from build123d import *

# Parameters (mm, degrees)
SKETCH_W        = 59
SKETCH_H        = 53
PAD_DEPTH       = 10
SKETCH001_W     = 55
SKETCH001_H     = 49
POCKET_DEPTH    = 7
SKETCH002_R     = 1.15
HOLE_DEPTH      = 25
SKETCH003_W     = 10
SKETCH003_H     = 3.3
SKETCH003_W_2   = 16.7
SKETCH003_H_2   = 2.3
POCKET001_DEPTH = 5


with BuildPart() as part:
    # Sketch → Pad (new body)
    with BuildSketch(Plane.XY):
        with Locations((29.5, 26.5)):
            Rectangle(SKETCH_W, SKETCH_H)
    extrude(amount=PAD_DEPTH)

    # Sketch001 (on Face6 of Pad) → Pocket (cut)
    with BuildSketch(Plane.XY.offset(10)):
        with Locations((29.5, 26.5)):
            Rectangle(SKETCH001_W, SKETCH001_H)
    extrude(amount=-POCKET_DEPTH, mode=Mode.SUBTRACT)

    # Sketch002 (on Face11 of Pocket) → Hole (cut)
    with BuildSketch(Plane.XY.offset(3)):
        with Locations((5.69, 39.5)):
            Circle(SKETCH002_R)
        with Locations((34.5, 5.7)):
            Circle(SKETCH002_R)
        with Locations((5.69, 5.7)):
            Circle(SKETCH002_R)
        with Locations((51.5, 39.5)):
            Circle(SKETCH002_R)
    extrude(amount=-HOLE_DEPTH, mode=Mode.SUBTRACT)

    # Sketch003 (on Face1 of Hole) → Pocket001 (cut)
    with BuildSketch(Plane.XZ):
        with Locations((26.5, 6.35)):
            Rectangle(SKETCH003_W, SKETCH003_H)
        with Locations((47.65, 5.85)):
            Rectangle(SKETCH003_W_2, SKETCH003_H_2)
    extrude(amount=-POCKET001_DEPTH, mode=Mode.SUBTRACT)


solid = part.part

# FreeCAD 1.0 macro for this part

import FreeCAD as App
import Part
import Sketcher
Q = App.Units.Quantity


def add_polygon(sketch, points):
    """Adds a closed chain of lines whose ends are joined by coincident constraints."""
    first, n = sketch.GeometryCount, len(points)
    for a, b in zip(points, points[1:] + points[:1]):
        sketch.addGeometry(Part.LineSegment(App.Vector(*a, 0), App.Vector(*b, 0)), False)
    for i in range(n):
        sketch.addConstraint(Sketcher.Constraint("Coincident", first + i, 2, first + (i + 1) % n, 1))

doc = App.newDocument("Part")
params = doc.addObject("Spreadsheet::Sheet", "Params")
for row, (alias, value) in enumerate([
    ("sketch1_width", "59 mm"),
    ("sketch1_height", "53 mm"),
    ("pad1_length", "10 mm"),
    ("sketch2_width", "55 mm"),
    ("sketch2_height", "49 mm"),
    ("pocket1_length", "7 mm"),
    ("sketch3_diameter", "2.3 mm"),
    ("pocket2_length", "25 mm"),
    ("sketch4_width", "10 mm"),
    ("sketch4_width2", "16.7 mm"),
    ("sketch4_height", "3.3 mm"),
    ("sketch4_height2", "2.3 mm"),
    ("pocket3_length", "5 mm"),
], start=1):
    params.set(f"A{row}", alias)
    params.set(f"B{row}", "=" + value)
    params.setAlias(f"B{row}", alias)

body = doc.addObject("PartDesign::Body", "Body")

# Sketch on XY plane
sketch1 = body.newObject("Sketcher::SketchObject", "Sketch")
sketch1.AttachmentSupport = (doc.getObject("XY_Plane"), [""])
sketch1.MapMode = "FlatFace"
add_polygon(sketch1, [(0, 53), (0, 0), (59, 0), (59, 53)])  # lines 0-3
sketch1.addConstraint(Sketcher.Constraint("Vertical", 0))
sketch1.addConstraint(Sketcher.Constraint("Horizontal", 1))
sketch1.addConstraint(Sketcher.Constraint("Vertical", 2))
sketch1.addConstraint(Sketcher.Constraint("Horizontal", 3))
sketch1.addConstraint(Sketcher.Constraint("Coincident", 0, 2, -1, 1))
sketch1.addConstraint(Sketcher.Constraint("DistanceX", 1, 1, 1, 2, Q("59 mm")))
sketch1.addConstraint(Sketcher.Constraint("DistanceY", 0, 2, 0, 1, Q("53 mm")))
sketch1.setExpression("Constraints[9]", "Params.sketch1_width")
sketch1.setExpression("Constraints[10]", "Params.sketch1_height")
pad1 = body.newObject("PartDesign::Pad", "Pad")
pad1.Profile = sketch1
pad1.setExpression("Length", "Params.pad1_length")

# Sketch on XY plane
sketch2 = body.newObject("Sketcher::SketchObject", "Sketch001")
sketch2.AttachmentSupport = (doc.getObject("XY_Plane"), [""])
sketch2.MapMode = "FlatFace"
sketch2.AttachmentOffset = App.Placement(App.Vector(0, 0, 10), App.Rotation())
add_polygon(sketch2, [(2, 51), (2, 2), (57, 2), (57, 51)])  # lines 0-3
sketch2.addConstraint(Sketcher.Constraint("Vertical", 0))
sketch2.addConstraint(Sketcher.Constraint("Horizontal", 1))
sketch2.addConstraint(Sketcher.Constraint("Vertical", 2))
sketch2.addConstraint(Sketcher.Constraint("Horizontal", 3))
sketch2.addConstraint(Sketcher.Constraint("DistanceX", 1, 1, 1, 2, Q("55 mm")))
sketch2.addConstraint(Sketcher.Constraint("DistanceY", 0, 2, 0, 1, Q("49 mm")))
sketch2.addConstraint(Sketcher.Constraint("DistanceX", -1, 1, 0, 2, Q("2 mm")))
sketch2.addConstraint(Sketcher.Constraint("DistanceY", -1, 1, 0, 2, Q("2 mm")))
sketch2.setExpression("Constraints[8]", "Params.sketch2_width")
sketch2.setExpression("Constraints[9]", "Params.sketch2_height")
pocket1 = body.newObject("PartDesign::Pocket", "Pocket")
pocket1.Profile = sketch2
pocket1.setExpression("Length", "Params.pocket1_length")

# Sketch on XY plane
sketch3 = body.newObject("Sketcher::SketchObject", "Sketch002")
sketch3.AttachmentSupport = (doc.getObject("XY_Plane"), [""])
sketch3.MapMode = "FlatFace"
sketch3.AttachmentOffset = App.Placement(App.Vector(0, 0, 3), App.Rotation())
sketch3.addGeometry(Part.Circle(App.Vector(5.7, 39.5, 0), App.Vector(0, 0, 1), 1.1), False)
sketch3.addGeometry(Part.Circle(App.Vector(34.5, 5.7, 0), App.Vector(0, 0, 1), 1.1), False)
sketch3.addGeometry(Part.Circle(App.Vector(5.7, 5.7, 0), App.Vector(0, 0, 1), 1.1), False)
sketch3.addGeometry(Part.Circle(App.Vector(51.5, 39.5, 0), App.Vector(0, 0, 1), 1.1), False)
sketch3.addConstraint(Sketcher.Constraint("Equal", 0, 1))
sketch3.addConstraint(Sketcher.Constraint("Equal", 1, 2))
sketch3.addConstraint(Sketcher.Constraint("Equal", 2, 3))
sketch3.addConstraint(Sketcher.Constraint("Horizontal", 1, 3, 2, 3))
sketch3.addConstraint(Sketcher.Constraint("Horizontal", 0, 3, 3, 3))
sketch3.addConstraint(Sketcher.Constraint("Vertical", 0, 3, 2, 3))
sketch3.addConstraint(Sketcher.Constraint("Diameter", 0, Q("2.3 mm")))
sketch3.addConstraint(Sketcher.Constraint("DistanceX", 1, 3, 3, 3, Q("17 mm")))
sketch3.addConstraint(Sketcher.Constraint("DistanceY", -1, 1, 0, 3, Q("39.5 mm")))
sketch3.addConstraint(Sketcher.Constraint("DistanceX", -1, 1, 1, 3, Q("34.5 mm")))
sketch3.addConstraint(Sketcher.Constraint("DistanceY", -1, 1, 1, 3, Q("5.7 mm")))
sketch3.addConstraint(Sketcher.Constraint("DistanceX", -1, 1, 0, 3, Q("5.69 mm")))
sketch3.setExpression("Constraints[6]", "Params.sketch3_diameter")
pocket2 = body.newObject("PartDesign::Pocket", "Pocket001")
pocket2.Profile = sketch3
pocket2.setExpression("Length", "Params.pocket2_length")

# Sketch on XZ plane
sketch4 = body.newObject("Sketcher::SketchObject", "Sketch003")
sketch4.AttachmentSupport = (doc.getObject("XZ_Plane"), [""])
sketch4.MapMode = "FlatFace"
add_polygon(sketch4, [(21.5, 8), (21.5, 4.7), (31.5, 4.7), (31.5, 8)])  # lines 0-3
add_polygon(sketch4, [(39.3, 7), (39.3, 4.7), (56, 4.7), (56, 7)])  # lines 4-7
sketch4.addConstraint(Sketcher.Constraint("Vertical", 0))
sketch4.addConstraint(Sketcher.Constraint("Horizontal", 1))
sketch4.addConstraint(Sketcher.Constraint("Vertical", 2))
sketch4.addConstraint(Sketcher.Constraint("Horizontal", 3))
sketch4.addConstraint(Sketcher.Constraint("Vertical", 4))
sketch4.addConstraint(Sketcher.Constraint("Horizontal", 5))
sketch4.addConstraint(Sketcher.Constraint("Vertical", 6))
sketch4.addConstraint(Sketcher.Constraint("Horizontal", 7))
sketch4.addConstraint(Sketcher.Constraint("Horizontal", 1, 2, 4, 2))
sketch4.addConstraint(Sketcher.Constraint("DistanceX", 1, 1, 1, 2, Q("10 mm")))
sketch4.addConstraint(Sketcher.Constraint("DistanceX", 5, 1, 5, 2, Q("16.7 mm")))
sketch4.addConstraint(Sketcher.Constraint("DistanceY", 0, 2, 0, 1, Q("3.3 mm")))
sketch4.addConstraint(Sketcher.Constraint("DistanceY", 4, 2, 4, 1, Q("2.3 mm")))
sketch4.addConstraint(Sketcher.Constraint("DistanceY", -1, 1, 2, 2, Q("8 mm")))
sketch4.addConstraint(Sketcher.Constraint("DistanceX", -1, 1, 5, 2, Q("56 mm")))
sketch4.addConstraint(Sketcher.Constraint("DistanceX", -1, 1, 0, 2, Q("21.5 mm")))
sketch4.setExpression("Constraints[17]", "Params.sketch4_width")
sketch4.setExpression("Constraints[18]", "Params.sketch4_width2")
sketch4.setExpression("Constraints[19]", "Params.sketch4_height")
sketch4.setExpression("Constraints[20]", "Params.sketch4_height2")
pocket3 = body.newObject("PartDesign::Pocket", "Pocket002")
pocket3.Profile = sketch4
pocket3.setExpression("Length", "Params.pocket3_length")

doc.recompute()
